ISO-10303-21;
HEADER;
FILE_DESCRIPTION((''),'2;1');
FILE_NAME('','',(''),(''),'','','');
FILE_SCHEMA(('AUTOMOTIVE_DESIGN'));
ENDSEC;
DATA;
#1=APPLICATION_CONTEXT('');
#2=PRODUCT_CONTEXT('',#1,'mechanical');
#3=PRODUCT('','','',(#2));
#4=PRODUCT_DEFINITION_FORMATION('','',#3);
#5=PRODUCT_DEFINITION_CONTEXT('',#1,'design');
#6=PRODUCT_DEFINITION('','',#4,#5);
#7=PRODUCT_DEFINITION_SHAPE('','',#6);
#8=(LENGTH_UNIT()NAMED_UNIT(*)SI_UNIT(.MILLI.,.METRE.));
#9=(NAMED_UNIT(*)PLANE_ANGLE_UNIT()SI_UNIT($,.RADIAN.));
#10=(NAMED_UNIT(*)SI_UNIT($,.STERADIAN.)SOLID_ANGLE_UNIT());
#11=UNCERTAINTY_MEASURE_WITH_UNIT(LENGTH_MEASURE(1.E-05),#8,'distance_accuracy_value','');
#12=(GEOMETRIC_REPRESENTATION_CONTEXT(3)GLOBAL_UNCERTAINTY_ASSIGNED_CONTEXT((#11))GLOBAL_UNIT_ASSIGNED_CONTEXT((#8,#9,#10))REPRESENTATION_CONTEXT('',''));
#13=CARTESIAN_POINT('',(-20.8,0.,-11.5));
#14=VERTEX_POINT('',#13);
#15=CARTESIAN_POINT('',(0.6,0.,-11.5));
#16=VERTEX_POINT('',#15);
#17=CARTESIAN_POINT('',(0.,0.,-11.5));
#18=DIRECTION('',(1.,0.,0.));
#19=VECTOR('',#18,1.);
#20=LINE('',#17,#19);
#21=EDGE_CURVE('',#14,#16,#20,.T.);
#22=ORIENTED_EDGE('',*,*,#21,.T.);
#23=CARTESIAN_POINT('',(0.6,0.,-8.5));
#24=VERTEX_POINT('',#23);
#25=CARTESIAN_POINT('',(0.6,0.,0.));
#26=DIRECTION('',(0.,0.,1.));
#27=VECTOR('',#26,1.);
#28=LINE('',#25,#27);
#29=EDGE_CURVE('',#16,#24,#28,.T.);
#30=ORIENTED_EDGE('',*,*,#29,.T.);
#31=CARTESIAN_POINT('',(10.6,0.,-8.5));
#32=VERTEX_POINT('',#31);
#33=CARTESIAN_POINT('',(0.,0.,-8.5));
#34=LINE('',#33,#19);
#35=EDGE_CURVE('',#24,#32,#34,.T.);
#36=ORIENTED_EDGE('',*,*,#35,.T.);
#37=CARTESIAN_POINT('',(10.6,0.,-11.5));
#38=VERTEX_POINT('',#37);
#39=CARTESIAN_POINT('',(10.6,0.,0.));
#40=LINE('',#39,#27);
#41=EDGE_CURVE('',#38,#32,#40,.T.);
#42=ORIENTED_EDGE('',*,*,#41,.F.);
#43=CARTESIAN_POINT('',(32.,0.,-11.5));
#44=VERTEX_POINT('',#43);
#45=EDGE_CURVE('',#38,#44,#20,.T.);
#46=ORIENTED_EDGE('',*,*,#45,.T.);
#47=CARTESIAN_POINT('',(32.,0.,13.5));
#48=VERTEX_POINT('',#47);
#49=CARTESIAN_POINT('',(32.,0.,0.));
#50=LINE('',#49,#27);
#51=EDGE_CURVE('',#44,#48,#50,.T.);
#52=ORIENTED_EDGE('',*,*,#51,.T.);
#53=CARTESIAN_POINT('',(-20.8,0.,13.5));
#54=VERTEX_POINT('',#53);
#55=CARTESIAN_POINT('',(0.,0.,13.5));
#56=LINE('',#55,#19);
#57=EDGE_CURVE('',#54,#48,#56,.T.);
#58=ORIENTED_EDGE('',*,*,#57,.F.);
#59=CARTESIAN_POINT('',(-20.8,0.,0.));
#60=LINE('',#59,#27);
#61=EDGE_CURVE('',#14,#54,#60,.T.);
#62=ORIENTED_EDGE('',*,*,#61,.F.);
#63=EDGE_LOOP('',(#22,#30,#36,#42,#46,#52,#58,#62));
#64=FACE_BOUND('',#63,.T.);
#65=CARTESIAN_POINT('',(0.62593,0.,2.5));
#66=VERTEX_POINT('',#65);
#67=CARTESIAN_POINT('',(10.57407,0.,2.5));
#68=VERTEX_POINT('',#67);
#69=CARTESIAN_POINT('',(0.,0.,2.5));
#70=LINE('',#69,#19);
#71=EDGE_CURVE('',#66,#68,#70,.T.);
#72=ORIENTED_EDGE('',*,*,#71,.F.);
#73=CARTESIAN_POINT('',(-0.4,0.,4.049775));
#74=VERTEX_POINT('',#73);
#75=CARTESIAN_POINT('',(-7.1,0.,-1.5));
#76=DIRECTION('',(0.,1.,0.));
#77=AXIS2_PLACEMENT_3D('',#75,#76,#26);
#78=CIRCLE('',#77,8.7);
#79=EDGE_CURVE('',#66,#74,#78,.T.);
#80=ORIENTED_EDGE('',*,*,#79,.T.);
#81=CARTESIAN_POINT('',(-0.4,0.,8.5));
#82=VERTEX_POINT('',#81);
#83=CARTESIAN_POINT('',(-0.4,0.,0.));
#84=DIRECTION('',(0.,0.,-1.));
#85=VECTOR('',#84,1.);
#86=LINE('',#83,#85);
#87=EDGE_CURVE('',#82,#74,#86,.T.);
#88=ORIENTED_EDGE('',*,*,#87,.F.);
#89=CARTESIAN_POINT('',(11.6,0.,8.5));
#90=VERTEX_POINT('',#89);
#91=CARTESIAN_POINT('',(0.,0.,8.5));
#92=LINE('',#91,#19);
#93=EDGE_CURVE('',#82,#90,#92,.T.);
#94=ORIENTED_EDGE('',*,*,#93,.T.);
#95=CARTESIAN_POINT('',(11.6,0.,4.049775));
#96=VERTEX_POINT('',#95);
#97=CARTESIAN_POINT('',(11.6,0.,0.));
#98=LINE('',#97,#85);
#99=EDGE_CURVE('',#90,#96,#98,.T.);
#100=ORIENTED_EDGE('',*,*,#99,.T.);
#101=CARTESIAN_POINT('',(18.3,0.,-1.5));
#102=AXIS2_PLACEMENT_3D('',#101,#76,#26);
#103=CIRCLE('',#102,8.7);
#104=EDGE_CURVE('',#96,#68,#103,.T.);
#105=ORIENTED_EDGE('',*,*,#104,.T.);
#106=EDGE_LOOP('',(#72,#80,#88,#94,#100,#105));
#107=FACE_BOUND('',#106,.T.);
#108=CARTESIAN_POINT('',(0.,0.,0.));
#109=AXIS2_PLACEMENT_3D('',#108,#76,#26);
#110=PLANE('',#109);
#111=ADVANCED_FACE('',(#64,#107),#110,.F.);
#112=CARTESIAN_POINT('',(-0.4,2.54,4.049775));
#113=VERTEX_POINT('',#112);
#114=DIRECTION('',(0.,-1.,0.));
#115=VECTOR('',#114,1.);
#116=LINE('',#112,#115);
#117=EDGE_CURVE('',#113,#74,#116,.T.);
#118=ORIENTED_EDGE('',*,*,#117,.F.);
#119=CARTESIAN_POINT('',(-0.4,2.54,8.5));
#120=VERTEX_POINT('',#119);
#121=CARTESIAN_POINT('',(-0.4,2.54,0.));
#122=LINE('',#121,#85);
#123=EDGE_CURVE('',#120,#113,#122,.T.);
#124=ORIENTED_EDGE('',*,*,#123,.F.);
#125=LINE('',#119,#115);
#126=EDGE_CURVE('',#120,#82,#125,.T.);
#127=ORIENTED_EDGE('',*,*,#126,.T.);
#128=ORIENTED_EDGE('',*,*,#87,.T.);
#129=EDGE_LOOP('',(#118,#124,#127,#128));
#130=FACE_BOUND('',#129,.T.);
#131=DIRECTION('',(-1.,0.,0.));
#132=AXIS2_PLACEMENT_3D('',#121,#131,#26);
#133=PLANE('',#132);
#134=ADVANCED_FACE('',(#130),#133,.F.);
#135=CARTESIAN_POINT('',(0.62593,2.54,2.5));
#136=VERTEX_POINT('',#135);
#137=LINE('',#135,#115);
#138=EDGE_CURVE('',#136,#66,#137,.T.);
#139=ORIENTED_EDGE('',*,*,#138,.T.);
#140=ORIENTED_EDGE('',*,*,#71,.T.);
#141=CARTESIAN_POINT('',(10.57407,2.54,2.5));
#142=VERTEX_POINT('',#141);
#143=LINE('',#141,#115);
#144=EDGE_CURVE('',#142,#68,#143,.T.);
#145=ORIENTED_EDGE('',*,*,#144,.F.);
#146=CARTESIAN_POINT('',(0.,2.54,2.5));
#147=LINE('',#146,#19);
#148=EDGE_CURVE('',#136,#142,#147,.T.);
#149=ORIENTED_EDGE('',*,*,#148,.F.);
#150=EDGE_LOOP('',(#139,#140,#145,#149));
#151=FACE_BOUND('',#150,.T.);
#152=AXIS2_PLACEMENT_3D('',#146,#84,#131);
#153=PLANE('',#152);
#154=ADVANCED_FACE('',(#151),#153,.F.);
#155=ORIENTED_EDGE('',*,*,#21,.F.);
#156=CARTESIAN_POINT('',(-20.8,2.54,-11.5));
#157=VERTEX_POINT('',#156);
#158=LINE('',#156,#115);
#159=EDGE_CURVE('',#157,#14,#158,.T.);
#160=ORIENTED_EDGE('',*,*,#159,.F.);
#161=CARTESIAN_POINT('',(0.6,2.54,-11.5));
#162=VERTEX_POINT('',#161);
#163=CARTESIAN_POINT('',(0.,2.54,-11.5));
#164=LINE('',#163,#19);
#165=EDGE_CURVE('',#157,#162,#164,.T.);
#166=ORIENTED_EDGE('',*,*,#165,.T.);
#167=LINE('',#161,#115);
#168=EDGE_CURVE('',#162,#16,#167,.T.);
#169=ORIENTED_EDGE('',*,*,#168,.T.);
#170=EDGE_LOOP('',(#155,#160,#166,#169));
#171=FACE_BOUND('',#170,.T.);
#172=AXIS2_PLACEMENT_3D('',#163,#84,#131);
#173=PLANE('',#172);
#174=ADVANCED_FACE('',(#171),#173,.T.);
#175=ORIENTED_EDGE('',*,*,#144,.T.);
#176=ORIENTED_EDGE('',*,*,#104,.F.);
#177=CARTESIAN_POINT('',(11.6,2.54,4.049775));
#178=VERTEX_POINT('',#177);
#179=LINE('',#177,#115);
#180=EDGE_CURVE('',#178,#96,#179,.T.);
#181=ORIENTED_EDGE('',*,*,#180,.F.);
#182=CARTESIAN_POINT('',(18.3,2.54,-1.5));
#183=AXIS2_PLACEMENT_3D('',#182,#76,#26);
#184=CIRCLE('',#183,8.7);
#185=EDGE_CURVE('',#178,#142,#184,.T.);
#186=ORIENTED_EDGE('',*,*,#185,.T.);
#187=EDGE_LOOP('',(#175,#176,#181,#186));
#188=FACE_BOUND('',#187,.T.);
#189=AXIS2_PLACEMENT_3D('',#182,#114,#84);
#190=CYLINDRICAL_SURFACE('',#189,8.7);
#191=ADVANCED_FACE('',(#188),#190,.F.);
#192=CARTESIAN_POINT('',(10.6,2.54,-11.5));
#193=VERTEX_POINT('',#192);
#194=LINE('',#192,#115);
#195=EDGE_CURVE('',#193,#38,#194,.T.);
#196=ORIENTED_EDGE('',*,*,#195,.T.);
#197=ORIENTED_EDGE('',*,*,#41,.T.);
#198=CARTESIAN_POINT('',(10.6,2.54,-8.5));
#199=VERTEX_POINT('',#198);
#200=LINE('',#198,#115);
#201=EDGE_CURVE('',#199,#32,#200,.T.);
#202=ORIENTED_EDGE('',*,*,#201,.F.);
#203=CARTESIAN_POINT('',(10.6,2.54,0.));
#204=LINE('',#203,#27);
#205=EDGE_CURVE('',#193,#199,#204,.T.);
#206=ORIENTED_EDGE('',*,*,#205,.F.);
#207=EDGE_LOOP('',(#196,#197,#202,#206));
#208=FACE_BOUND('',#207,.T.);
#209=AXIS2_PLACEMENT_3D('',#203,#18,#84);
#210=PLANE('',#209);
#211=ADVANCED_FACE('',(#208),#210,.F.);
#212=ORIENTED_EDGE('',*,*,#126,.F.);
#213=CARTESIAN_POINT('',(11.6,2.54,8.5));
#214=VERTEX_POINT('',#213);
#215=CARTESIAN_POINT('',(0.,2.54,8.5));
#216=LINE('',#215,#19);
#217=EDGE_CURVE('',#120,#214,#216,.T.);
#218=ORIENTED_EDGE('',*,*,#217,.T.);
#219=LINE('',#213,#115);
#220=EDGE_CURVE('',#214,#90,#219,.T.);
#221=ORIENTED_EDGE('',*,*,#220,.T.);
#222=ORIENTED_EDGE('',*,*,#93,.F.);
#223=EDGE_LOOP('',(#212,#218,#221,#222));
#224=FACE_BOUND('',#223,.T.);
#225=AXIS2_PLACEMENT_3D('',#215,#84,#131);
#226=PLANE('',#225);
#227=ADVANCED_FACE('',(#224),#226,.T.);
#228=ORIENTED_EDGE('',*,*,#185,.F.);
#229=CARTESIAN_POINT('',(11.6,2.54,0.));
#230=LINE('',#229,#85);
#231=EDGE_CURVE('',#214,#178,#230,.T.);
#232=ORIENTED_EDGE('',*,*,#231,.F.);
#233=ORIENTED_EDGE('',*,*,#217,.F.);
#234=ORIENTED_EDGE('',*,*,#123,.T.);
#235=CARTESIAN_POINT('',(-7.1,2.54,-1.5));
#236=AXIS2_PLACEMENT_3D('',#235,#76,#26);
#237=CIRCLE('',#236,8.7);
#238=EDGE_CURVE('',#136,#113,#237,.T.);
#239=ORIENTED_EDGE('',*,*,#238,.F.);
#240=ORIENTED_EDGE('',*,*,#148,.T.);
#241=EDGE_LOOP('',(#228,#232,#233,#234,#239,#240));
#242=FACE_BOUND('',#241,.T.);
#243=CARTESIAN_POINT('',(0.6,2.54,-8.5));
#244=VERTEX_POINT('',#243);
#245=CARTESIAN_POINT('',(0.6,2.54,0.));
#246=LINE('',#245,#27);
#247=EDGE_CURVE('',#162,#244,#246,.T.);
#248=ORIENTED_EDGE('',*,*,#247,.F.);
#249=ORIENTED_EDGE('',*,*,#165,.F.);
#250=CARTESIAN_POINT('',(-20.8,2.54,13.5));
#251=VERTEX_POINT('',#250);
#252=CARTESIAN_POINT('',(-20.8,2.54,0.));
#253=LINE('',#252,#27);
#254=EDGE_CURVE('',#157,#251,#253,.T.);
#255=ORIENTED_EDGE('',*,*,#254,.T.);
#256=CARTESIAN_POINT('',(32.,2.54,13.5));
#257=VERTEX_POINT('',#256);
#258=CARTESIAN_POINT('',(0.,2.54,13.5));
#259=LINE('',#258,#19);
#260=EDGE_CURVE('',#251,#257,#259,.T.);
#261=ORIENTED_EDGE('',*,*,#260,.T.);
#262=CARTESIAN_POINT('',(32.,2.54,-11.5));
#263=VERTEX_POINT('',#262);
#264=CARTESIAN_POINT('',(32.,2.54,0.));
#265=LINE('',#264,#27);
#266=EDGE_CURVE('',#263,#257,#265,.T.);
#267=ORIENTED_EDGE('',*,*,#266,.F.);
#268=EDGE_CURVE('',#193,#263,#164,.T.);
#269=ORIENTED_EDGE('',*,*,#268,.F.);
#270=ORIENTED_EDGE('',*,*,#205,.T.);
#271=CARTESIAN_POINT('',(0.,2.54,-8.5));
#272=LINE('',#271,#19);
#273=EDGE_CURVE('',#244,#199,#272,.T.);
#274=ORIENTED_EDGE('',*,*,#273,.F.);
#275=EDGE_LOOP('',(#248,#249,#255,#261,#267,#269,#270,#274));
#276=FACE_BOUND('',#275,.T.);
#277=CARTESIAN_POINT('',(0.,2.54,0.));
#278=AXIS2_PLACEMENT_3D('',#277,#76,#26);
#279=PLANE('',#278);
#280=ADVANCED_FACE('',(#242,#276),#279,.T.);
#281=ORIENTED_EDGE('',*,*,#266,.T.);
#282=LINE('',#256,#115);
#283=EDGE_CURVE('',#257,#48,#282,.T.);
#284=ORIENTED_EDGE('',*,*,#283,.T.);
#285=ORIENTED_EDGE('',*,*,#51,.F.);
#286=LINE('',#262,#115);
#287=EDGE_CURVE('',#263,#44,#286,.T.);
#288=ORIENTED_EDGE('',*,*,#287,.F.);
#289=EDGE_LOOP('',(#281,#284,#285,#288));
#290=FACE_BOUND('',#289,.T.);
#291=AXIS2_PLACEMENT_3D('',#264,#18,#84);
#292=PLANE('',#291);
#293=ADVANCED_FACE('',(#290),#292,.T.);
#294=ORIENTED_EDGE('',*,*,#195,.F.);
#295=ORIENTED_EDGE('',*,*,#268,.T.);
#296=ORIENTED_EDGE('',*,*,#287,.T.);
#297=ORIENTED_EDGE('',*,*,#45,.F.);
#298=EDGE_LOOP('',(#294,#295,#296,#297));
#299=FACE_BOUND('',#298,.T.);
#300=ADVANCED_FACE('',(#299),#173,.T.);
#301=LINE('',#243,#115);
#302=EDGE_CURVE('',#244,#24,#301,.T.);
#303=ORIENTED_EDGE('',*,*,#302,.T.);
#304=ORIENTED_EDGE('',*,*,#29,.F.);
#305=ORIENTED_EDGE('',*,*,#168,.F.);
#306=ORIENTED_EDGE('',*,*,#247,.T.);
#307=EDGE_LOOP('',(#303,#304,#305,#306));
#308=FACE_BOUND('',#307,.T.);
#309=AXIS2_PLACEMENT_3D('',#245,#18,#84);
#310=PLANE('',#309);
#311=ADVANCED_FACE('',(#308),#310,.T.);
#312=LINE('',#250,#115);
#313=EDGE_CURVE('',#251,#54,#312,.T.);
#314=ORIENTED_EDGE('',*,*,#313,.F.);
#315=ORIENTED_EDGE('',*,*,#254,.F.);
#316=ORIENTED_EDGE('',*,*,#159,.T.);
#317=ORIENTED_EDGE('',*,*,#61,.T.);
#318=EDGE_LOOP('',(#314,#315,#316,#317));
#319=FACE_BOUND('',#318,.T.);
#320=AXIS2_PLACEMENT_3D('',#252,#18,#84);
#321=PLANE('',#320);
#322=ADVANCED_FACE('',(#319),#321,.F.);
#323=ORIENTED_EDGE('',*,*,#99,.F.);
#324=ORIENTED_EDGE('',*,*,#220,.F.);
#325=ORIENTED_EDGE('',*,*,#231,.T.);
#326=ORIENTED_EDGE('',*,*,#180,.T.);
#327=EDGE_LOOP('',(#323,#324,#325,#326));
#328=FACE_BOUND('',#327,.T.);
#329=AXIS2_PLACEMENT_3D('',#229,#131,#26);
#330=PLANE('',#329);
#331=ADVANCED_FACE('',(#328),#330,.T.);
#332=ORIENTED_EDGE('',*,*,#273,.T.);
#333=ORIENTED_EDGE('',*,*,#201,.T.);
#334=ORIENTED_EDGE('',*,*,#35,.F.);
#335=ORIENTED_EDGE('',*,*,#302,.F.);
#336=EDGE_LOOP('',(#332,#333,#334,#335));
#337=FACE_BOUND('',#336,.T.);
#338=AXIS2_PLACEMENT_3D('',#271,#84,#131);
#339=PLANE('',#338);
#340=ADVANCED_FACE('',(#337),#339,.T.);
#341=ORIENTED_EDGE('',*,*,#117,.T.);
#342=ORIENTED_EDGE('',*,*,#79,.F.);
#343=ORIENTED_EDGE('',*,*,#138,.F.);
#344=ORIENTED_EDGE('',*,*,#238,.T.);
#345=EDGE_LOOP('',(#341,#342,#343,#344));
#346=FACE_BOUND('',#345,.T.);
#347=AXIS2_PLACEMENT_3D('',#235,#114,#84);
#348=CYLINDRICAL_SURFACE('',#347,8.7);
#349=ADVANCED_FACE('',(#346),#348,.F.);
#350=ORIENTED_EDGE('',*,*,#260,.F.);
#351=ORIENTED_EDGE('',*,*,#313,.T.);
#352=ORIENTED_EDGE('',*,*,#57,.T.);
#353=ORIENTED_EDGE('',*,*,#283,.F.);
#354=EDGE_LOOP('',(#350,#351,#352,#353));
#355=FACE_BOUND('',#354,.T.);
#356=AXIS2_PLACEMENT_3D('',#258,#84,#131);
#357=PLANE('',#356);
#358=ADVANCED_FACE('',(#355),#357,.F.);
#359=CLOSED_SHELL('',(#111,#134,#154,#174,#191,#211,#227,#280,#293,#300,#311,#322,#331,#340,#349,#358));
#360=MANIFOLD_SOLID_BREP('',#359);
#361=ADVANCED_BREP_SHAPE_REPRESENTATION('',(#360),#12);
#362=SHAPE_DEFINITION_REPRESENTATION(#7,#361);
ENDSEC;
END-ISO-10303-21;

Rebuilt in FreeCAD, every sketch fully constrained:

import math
import FreeCAD as App
import Part
import Sketcher

V = App.Vector
Q = App.Units.Quantity


def add_polygon(sketch, points):
    """Adds a closed chain of lines whose ends are joined by coincident constraints."""
    first, n = sketch.GeometryCount, len(points)
    for a, b in zip(points, points[1:] + points[:1]):
        sketch.addGeometry(Part.LineSegment(App.Vector(*a, 0), App.Vector(*b, 0)), False)
    for i in range(n):
        sketch.addConstraint(Sketcher.Constraint("Coincident", first + i, 2, first + (i + 1) % n, 1))

doc = App.newDocument("Part")
body = doc.addObject("PartDesign::Body", "Body")

# Sketch on XZ plane
sketch1 = body.newObject("Sketcher::SketchObject", "Sketch")
sketch1.AttachmentSupport = (doc.getObject("XZ_Plane"), [""])
sketch1.MapMode = "FlatFace"
add_polygon(sketch1, [(0.6, -11.5), (-20.8, -11.5), (-20.8, 13.5), (32, 13.5), (32, -11.5), (10.6, -11.5), (10.6, -8.5), (0.6, -8.5)])  # lines 0-7
sketch1.addGeometry(Part.LineSegment(V(11.6, 4, 0), V(11.6, 8.5, 0)), False)  # 8
sketch1.addGeometry(Part.LineSegment(V(11.6, 8.5, 0), V(-0.4, 8.5, 0)), False)  # 9
sketch1.addGeometry(Part.LineSegment(V(-0.4, 8.5, 0), V(-0.4, 4, 0)), False)  # 10
sketch1.addGeometry(Part.ArcOfCircle(Part.Circle(V(-7.1, -1.5, 0), V(0, 0, 1), 8.7), math.radians(40), math.radians(360)), False)  # 11
sketch1.addGeometry(Part.ArcOfCircle(Part.Circle(V(-7.1, -1.5, 0), V(0, 0, 1), 8.7), math.radians(0), math.radians(27)), False)  # 12
sketch1.addGeometry(Part.LineSegment(V(0.6, 2.5, 0), V(10.6, 2.5, 0)), False)  # 13
sketch1.addGeometry(Part.ArcOfCircle(Part.Circle(V(18.3, -1.5, 0), V(0, 0, 1), 8.7), math.radians(153), math.radians(360)), False)  # 14
sketch1.addGeometry(Part.ArcOfCircle(Part.Circle(V(18.3, -1.5, 0), V(0, 0, 1), 8.7), math.radians(0), math.radians(140)), False)  # 15
sketch1.addConstraint([
    Sketcher.Constraint("Coincident", 8, 2, 9, 1),
    Sketcher.Constraint("Coincident", 9, 2, 10, 1),
    Sketcher.Constraint("Coincident", 10, 2, 11, 1),
    Sketcher.Constraint("Tangent", 11, 2, 12, 1),
    Sketcher.Constraint("Coincident", 12, 2, 13, 1),
    Sketcher.Constraint("Coincident", 13, 2, 14, 1),
    Sketcher.Constraint("Tangent", 14, 2, 15, 1),
    Sketcher.Constraint("Coincident", 15, 2, 8, 1),
    Sketcher.Constraint("Horizontal", 0),
    Sketcher.Constraint("Vertical", 1),
    Sketcher.Constraint("Horizontal", 2),
    Sketcher.Constraint("Vertical", 3),
    Sketcher.Constraint("Horizontal", 4),
    Sketcher.Constraint("Vertical", 5),
    Sketcher.Constraint("Horizontal", 6),
    Sketcher.Constraint("Vertical", 7),
    Sketcher.Constraint("Vertical", 8),
    Sketcher.Constraint("Horizontal", 9),
    Sketcher.Constraint("Vertical", 10),
    Sketcher.Constraint("Horizontal", 13),
    Sketcher.Constraint("Equal", 11, 12),
    Sketcher.Constraint("Equal", 12, 14),
    Sketcher.Constraint("Equal", 14, 15),
    Sketcher.Constraint("Horizontal", 12, 3, 14, 3),
    Sketcher.Constraint("Horizontal", 0, 2, 3, 2),
    Sketcher.Constraint("Horizontal", 15, 3, 11, 2),
    Sketcher.Constraint("Horizontal", 11, 2, 14, 2),
    Sketcher.Constraint("Horizontal", 10, 2, 15, 2),
    Sketcher.Constraint("Equal", 0, 4),
    Sketcher.Constraint("Radius", 11, Q("8.7 mm")),
    Sketcher.Constraint("DistanceX", 6, 2, 6, 1, Q("10 mm")),
    Sketcher.Constraint("DistanceX", 9, 2, 9, 1, Q("12 mm")),
    Sketcher.Constraint("DistanceY", 1, 1, 1, 2, Q("25 mm")),
    Sketcher.Constraint("DistanceY", 5, 1, 5, 2, Q("3 mm")),
    Sketcher.Constraint("DistanceX", 0, 2, 0, 1, Q("21.4 mm")),
    Sketcher.Constraint("DistanceX", -1, 1, 2, 2, Q("32 mm")),
    Sketcher.Constraint("DistanceX", -1, 1, 14, 2, Q("27 mm")),
    Sketcher.Constraint("DistanceY", 0, 2, 12, 3, Q("10 mm")),
    Sketcher.Constraint("DistanceY", 14, 3, 8, 2, Q("10 mm")),
    Sketcher.Constraint("DistanceX", 5, 2, 8, 2, Q("1 mm")),
    Sketcher.Constraint("DistanceY", 11, 2, 12, 2, Q("4 mm")),
    Sketcher.Constraint("DistanceY", 11, 3, -1, 1, Q("1.5 mm")),
])
pad1 = body.newObject("PartDesign::Pad", "Pad")
pad1.Profile = sketch1
pad1.Length = 2.54
pad1.Reversed = True

doc.recompute()
